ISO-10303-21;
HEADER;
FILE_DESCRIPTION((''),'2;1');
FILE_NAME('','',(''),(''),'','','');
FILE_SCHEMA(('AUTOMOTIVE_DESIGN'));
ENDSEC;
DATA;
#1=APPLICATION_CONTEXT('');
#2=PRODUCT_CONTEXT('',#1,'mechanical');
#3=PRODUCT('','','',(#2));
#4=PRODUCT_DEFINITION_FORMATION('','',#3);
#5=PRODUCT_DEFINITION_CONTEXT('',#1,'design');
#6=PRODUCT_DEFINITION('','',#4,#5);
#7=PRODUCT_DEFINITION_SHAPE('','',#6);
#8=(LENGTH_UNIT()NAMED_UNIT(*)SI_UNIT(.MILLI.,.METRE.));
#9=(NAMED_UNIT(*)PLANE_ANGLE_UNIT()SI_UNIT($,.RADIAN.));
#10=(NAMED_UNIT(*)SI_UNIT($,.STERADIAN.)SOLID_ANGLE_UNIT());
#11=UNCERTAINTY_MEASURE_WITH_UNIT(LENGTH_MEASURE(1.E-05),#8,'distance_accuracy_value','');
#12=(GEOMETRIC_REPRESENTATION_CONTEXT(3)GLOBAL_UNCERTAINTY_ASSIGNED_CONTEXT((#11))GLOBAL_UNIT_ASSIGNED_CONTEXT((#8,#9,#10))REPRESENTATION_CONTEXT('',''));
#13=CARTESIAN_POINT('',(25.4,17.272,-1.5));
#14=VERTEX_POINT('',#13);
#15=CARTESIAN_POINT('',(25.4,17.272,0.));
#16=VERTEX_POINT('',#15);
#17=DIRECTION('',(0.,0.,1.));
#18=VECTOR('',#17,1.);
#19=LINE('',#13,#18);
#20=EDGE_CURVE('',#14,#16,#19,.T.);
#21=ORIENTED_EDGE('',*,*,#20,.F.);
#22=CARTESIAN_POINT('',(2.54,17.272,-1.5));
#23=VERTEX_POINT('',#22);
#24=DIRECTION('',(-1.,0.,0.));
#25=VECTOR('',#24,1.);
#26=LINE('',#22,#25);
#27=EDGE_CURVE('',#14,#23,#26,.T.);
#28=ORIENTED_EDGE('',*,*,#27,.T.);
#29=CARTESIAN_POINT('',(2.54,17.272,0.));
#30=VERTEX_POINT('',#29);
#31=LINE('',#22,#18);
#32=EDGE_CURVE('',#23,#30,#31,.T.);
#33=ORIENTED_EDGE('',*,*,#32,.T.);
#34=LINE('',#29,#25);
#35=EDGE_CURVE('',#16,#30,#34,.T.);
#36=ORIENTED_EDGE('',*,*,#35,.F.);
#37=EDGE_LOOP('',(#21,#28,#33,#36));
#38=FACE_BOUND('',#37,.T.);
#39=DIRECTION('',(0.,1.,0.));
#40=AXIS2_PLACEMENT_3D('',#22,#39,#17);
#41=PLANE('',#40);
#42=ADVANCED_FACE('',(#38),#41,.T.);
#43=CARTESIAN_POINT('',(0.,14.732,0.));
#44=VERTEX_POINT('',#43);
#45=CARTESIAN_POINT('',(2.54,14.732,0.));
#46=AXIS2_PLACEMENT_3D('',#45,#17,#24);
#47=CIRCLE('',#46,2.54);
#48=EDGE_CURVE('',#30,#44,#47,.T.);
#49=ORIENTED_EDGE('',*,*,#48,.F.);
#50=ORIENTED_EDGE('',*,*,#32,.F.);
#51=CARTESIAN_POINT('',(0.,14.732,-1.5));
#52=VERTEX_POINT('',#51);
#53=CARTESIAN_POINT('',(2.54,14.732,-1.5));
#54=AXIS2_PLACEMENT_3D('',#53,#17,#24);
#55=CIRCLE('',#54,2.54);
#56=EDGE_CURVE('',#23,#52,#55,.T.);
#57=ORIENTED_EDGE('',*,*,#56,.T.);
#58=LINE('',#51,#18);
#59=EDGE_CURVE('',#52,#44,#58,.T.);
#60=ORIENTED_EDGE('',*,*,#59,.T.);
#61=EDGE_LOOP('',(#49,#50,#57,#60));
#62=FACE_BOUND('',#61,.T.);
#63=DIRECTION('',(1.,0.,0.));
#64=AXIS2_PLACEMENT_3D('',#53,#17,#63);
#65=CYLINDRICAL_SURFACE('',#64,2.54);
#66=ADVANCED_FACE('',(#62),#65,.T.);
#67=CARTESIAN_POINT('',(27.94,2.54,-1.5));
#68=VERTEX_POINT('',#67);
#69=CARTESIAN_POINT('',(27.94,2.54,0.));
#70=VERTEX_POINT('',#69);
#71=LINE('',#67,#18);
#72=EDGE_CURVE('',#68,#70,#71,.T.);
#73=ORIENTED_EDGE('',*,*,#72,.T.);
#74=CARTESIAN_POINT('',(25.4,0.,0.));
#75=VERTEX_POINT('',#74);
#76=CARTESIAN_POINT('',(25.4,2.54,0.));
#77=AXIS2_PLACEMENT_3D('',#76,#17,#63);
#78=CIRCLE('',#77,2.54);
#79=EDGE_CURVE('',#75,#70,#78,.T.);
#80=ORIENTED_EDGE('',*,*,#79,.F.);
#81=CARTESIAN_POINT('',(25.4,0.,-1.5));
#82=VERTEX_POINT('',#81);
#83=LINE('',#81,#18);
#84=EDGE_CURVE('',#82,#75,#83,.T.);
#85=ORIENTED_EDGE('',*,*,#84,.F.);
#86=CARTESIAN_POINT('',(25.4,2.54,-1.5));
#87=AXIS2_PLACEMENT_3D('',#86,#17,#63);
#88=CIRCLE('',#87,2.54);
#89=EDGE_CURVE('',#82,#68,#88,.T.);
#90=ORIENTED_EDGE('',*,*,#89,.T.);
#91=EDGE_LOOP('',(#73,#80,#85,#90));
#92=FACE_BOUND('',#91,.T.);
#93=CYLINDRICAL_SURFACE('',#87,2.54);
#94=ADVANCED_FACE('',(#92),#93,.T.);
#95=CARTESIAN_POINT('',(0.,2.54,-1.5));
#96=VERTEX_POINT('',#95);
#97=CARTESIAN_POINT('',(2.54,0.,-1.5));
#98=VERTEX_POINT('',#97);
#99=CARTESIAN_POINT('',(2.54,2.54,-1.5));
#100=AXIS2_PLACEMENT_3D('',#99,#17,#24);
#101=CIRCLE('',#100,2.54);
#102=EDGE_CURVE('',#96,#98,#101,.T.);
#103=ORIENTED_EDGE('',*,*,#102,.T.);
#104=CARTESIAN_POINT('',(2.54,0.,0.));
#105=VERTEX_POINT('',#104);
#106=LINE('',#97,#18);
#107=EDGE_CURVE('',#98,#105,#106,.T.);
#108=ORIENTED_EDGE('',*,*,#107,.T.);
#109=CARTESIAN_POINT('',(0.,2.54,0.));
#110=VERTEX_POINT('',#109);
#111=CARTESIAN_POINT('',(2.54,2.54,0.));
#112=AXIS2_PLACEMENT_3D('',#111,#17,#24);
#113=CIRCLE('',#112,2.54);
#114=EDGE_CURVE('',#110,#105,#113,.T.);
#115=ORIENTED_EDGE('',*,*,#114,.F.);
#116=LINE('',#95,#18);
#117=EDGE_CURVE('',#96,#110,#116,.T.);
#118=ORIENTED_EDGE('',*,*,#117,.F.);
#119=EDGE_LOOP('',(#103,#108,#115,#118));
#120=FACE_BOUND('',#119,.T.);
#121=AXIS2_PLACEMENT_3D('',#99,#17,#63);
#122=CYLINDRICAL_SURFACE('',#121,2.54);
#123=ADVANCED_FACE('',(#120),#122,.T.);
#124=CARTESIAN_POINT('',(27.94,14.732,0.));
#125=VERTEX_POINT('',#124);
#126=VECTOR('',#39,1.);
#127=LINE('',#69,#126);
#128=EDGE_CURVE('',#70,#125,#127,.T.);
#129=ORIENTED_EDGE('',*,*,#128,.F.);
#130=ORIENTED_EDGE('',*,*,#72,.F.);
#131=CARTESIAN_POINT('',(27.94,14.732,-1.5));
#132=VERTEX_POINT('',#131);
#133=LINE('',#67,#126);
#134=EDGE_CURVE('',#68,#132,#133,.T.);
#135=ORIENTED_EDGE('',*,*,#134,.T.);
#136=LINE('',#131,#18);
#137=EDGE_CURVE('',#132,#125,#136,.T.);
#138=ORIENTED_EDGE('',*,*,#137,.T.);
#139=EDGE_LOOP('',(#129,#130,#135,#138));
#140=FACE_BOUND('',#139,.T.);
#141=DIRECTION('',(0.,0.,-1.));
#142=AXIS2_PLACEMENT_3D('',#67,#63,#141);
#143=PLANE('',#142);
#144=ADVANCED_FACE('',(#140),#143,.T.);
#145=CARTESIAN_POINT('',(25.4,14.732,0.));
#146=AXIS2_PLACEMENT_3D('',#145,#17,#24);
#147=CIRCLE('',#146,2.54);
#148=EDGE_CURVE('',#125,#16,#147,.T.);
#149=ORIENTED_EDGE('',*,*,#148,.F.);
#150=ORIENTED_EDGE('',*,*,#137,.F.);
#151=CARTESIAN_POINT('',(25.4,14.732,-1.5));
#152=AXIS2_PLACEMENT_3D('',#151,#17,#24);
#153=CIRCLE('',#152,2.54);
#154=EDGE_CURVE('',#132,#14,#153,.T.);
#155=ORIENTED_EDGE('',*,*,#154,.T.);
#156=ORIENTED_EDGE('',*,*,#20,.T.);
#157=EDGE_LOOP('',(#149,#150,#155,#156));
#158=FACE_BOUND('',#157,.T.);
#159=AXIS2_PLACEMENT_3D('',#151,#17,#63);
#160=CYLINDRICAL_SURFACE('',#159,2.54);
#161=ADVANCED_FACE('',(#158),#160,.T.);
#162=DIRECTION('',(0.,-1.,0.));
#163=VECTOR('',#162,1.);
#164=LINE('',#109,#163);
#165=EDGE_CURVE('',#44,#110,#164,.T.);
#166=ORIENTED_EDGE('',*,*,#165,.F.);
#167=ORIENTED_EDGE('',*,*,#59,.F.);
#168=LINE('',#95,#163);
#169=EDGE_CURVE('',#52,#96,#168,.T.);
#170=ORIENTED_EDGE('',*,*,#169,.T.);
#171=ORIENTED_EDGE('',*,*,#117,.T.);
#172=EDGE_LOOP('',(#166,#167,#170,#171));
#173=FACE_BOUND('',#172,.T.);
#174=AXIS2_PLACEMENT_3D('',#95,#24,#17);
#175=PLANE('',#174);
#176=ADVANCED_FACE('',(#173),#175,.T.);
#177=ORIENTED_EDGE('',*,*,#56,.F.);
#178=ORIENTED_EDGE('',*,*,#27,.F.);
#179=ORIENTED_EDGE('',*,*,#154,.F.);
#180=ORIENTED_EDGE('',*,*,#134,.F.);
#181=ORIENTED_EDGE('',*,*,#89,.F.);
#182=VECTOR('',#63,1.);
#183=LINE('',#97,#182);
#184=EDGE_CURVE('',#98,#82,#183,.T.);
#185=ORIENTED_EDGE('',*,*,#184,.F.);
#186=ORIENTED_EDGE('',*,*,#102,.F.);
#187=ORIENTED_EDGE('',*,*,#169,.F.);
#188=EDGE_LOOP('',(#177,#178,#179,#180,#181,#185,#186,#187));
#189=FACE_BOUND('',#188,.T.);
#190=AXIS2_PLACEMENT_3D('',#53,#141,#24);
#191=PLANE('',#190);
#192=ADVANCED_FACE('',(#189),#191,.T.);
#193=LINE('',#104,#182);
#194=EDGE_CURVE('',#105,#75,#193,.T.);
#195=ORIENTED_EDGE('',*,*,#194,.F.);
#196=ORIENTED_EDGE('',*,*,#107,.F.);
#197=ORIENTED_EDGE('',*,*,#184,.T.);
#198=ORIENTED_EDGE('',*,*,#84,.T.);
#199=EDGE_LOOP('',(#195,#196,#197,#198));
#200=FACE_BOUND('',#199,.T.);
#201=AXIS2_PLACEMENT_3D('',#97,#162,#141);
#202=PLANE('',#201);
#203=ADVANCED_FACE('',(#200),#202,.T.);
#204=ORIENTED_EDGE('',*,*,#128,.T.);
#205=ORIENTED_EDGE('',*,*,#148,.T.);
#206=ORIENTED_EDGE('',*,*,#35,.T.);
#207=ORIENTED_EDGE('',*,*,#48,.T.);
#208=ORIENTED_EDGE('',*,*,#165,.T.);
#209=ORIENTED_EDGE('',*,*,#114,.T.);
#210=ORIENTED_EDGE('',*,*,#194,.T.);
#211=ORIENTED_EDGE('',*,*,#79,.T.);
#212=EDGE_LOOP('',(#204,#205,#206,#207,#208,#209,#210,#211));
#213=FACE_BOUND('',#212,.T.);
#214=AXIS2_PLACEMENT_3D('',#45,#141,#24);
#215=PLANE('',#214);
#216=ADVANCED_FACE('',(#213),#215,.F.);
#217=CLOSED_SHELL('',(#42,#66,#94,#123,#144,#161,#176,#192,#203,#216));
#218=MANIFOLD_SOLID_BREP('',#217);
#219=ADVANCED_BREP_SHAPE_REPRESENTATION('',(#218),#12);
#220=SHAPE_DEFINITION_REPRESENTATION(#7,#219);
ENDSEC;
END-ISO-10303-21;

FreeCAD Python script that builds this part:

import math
import FreeCAD as App
import Part
import Sketcher
Q = App.Units.Quantity

doc = App.newDocument("Part")
body = doc.addObject("PartDesign::Body", "Body")

# Sketch on XY plane
sketch1 = body.newObject("Sketcher::SketchObject", "Sketch")
sketch1.AttachmentSupport = (doc.getObject("XY_Plane"), [""])
sketch1.MapMode = "FlatFace"
sketch1.addGeometry([
    Part.LineSegment(App.Vector(2.54, 0, 0), App.Vector(25.4, 0, 0)),  # 0
    Part.ArcOfCircle(Part.Circle(App.Vector(25.4, 2.54, 0), App.Vector(0, 0, 1), 2.54), math.radians(-90), math.radians(0)),  # 1
    Part.LineSegment(App.Vector(27.94, 2.54, 0), App.Vector(27.94, 14.732, 0)),  # 2
    Part.ArcOfCircle(Part.Circle(App.Vector(25.4, 14.732, 0), App.Vector(0, 0, 1), 2.54), math.radians(0), math.radians(90)),  # 3
    Part.LineSegment(App.Vector(25.4, 17.272, 0), App.Vector(2.54, 17.272, 0)),  # 4
    Part.ArcOfCircle(Part.Circle(App.Vector(2.54, 14.732, 0), App.Vector(0, 0, 1), 2.54), math.radians(90), math.radians(180)),  # 5
    Part.LineSegment(App.Vector(0, 14.732, 0), App.Vector(0, 2.54, 0)),  # 6
    Part.ArcOfCircle(Part.Circle(App.Vector(2.54, 2.54, 0), App.Vector(0, 0, 1), 2.54), math.radians(-180), math.radians(-90)),  # 7
], False)
sketch1.addConstraint([
    Sketcher.Constraint("Tangent", 0, 2, 1, 1),
    Sketcher.Constraint("Tangent", 1, 2, 2, 1),
    Sketcher.Constraint("Tangent", 2, 2, 3, 1),
    Sketcher.Constraint("Tangent", 3, 2, 4, 1),
    Sketcher.Constraint("Tangent", 4, 2, 5, 1),
    Sketcher.Constraint("Tangent", 5, 2, 6, 1),
    Sketcher.Constraint("Tangent", 6, 2, 7, 1),
    Sketcher.Constraint("Tangent", 7, 2, 0, 1),
    Sketcher.Constraint("Horizontal", 0),
    Sketcher.Constraint("Vertical", 2),
    Sketcher.Constraint("Horizontal", 4),
    Sketcher.Constraint("Vertical", 6),
    Sketcher.Constraint("Equal", 1, 3),
    Sketcher.Constraint("Equal", 3, 5),
    Sketcher.Constraint("Equal", 5, 7),
    Sketcher.Constraint("PointOnObject", 0, 2, -1),
    Sketcher.Constraint("PointOnObject", 5, 2, -2),
    Sketcher.Constraint("Radius", 1, Q("0.1 in")),
    Sketcher.Constraint("DistanceX", 0, 1, 0, 2, Q("0.9 in")),
    Sketcher.Constraint("DistanceY", 2, 1, 2, 2, Q("0.48 in")),
])
pad1 = body.newObject("PartDesign::Pad", "Pad")
pad1.Profile = sketch1
pad1.Length = 1.5
pad1.Reversed = True

doc.recompute()
